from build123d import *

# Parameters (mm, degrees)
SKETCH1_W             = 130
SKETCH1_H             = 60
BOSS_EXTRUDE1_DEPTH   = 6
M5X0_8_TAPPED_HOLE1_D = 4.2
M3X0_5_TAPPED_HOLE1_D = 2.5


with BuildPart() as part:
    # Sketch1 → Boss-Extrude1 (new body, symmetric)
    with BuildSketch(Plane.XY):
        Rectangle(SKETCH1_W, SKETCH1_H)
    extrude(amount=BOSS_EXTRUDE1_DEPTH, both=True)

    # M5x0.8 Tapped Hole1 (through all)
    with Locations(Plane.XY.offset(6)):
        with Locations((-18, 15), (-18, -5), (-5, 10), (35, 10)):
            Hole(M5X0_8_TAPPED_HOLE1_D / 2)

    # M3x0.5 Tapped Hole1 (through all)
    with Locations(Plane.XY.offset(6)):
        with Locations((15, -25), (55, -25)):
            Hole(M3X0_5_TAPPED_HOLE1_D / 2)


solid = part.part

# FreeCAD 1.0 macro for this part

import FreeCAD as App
import Part
import Sketcher

V = App.Vector
Q = App.Units.Quantity


def add_polygon(sketch, points):
    """Adds a closed chain of lines whose ends are joined by coincident constraints."""
    first, n = sketch.GeometryCount, len(points)
    for a, b in zip(points, points[1:] + points[:1]):
        sketch.addGeometry(Part.LineSegment(App.Vector(*a, 0), App.Vector(*b, 0)), False)
    for i in range(n):
        sketch.addConstraint(Sketcher.Constraint("Coincident", first + i, 2, first + (i + 1) % n, 1))

doc = App.newDocument("Part")
params = doc.addObject("Spreadsheet::Sheet", "Params")
for row, (alias, value) in enumerate([
    ("sketch1_width", "130 mm"),
    ("sketch1_height", "60 mm"),
    ("pad1_length", "12 mm"),
    ("sketch2_diameter", "4.2 mm"),
    ("hole_diameter", "4.2 mm"),
    ("sketch3_diameter", "2.5 mm"),
    ("hole2_diameter", "2.5 mm"),
], start=1):
    params.set(f"A{row}", alias)
    params.set(f"B{row}", "=" + value)
    params.setAlias(f"B{row}", alias)

body = doc.addObject("PartDesign::Body", "Body")

# Sketch on XY plane
sketch1 = doc.addObject("Sketcher::SketchObject", "Sketch")
body.addObject(sketch1)
sketch1.AttachmentSupport = (doc.XY_Plane, [""])
sketch1.MapMode = "FlatFace"
add_polygon(sketch1, [(-65, 30), (-65, -30), (65, -30), (65, 30)])  # lines 0-3
sketch1.addConstraint(Sketcher.Constraint("Vertical", 0))
sketch1.addConstraint(Sketcher.Constraint("Horizontal", 1))
sketch1.addConstraint(Sketcher.Constraint("Vertical", 2))
sketch1.addConstraint(Sketcher.Constraint("Horizontal", 3))
sketch1.addConstraint(Sketcher.Constraint("Symmetric", 0, 2, 2, 2, -1, 1))
sketch1.addConstraint(Sketcher.Constraint("DistanceX", 1, 1, 1, 2, Q("130 mm")))
sketch1.addConstraint(Sketcher.Constraint("DistanceY", 0, 2, 0, 1, Q("60 mm")))
sketch1.setExpression("Constraints[9]", "Params.sketch1_width")
sketch1.setExpression("Constraints[10]", "Params.sketch1_height")
pad1 = doc.addObject("PartDesign::Pad", "Pad")
body.addObject(pad1)
pad1.Profile = sketch1
pad1.setExpression("Length", "Params.pad1_length")
pad1.Midplane = True

# Sketch on XY plane
sketch2 = doc.addObject("Sketcher::SketchObject", "Sketch001")
body.addObject(sketch2)
sketch2.AttachmentSupport = (doc.XY_Plane, [""])
sketch2.MapMode = "FlatFace"
sketch2.AttachmentOffset = App.Placement(V(0, 0, 6), App.Rotation())
sketch2.addGeometry(Part.Circle(V(-18, 15, 0), V(0, 0, 1), 2.1), False)
sketch2.addGeometry(Part.Circle(V(-18, -5, 0), V(0, 0, 1), 2.1), False)
sketch2.addGeometry(Part.Circle(V(-5, 10, 0), V(0, 0, 1), 2.1), False)
sketch2.addGeometry(Part.Circle(V(35, 10, 0), V(0, 0, 1), 2.1), False)
sketch2.addConstraint(Sketcher.Constraint("Equal", 0, 1))
sketch2.addConstraint(Sketcher.Constraint("Equal", 1, 2))
sketch2.addConstraint(Sketcher.Constraint("Equal", 2, 3))
sketch2.addConstraint(Sketcher.Constraint("Horizontal", 2, 3, 3, 3))
sketch2.addConstraint(Sketcher.Constraint("Vertical", 0, 3, 1, 3))
sketch2.addConstraint(Sketcher.Constraint("Diameter", 0, Q("4.2 mm")))
sketch2.addConstraint(Sketcher.Constraint("DistanceX", 0, 3, -1, 1, Q("18 mm")))
sketch2.addConstraint(Sketcher.Constraint("DistanceY", -1, 1, 0, 3, Q("15 mm")))
sketch2.addConstraint(Sketcher.Constraint("DistanceY", 1, 3, -1, 1, Q("5 mm")))
sketch2.addConstraint(Sketcher.Constraint("DistanceX", 2, 3, -1, 1, Q("5 mm")))
sketch2.addConstraint(Sketcher.Constraint("DistanceY", -1, 1, 2, 3, Q("10 mm")))
sketch2.addConstraint(Sketcher.Constraint("DistanceX", -1, 1, 3, 3, Q("35 mm")))
sketch2.setExpression("Constraints[5]", "Params.sketch2_diameter")
doc.recompute()
hole = doc.addObject("PartDesign::Hole", "Hole")
body.addObject(hole)
hole.Profile = sketch2
hole.ThreadType = "None"
hole.setExpression("Diameter", "Params.hole_diameter")
hole.DepthType = "ThroughAll"

# Sketch on XY plane
sketch3 = doc.addObject("Sketcher::SketchObject", "Sketch002")
body.addObject(sketch3)
sketch3.AttachmentSupport = (doc.XY_Plane, [""])
sketch3.MapMode = "FlatFace"
sketch3.AttachmentOffset = App.Placement(V(0, 0, 6), App.Rotation())
sketch3.addGeometry(Part.Circle(V(15, -25, 0), V(0, 0, 1), 1.25), False)
sketch3.addGeometry(Part.Circle(V(55, -25, 0), V(0, 0, 1), 1.25), False)
sketch3.addConstraint(Sketcher.Constraint("Equal", 0, 1))
sketch3.addConstraint(Sketcher.Constraint("Horizontal", 0, 3, 1, 3))
sketch3.addConstraint(Sketcher.Constraint("Diameter", 0, Q("2.5 mm")))
sketch3.addConstraint(Sketcher.Constraint("DistanceX", -1, 1, 0, 3, Q("15 mm")))
sketch3.addConstraint(Sketcher.Constraint("DistanceY", 0, 3, -1, 1, Q("25 mm")))
sketch3.addConstraint(Sketcher.Constraint("DistanceX", -1, 1, 1, 3, Q("55 mm")))
sketch3.setExpression("Constraints[2]", "Params.sketch3_diameter")
doc.recompute()
hole2 = doc.addObject("PartDesign::Hole", "Hole001")
body.addObject(hole2)
hole2.Profile = sketch3
hole2.ThreadType = "None"
hole2.setExpression("Diameter", "Params.hole2_diameter")
hole2.DepthType = "ThroughAll"

doc.recompute()
